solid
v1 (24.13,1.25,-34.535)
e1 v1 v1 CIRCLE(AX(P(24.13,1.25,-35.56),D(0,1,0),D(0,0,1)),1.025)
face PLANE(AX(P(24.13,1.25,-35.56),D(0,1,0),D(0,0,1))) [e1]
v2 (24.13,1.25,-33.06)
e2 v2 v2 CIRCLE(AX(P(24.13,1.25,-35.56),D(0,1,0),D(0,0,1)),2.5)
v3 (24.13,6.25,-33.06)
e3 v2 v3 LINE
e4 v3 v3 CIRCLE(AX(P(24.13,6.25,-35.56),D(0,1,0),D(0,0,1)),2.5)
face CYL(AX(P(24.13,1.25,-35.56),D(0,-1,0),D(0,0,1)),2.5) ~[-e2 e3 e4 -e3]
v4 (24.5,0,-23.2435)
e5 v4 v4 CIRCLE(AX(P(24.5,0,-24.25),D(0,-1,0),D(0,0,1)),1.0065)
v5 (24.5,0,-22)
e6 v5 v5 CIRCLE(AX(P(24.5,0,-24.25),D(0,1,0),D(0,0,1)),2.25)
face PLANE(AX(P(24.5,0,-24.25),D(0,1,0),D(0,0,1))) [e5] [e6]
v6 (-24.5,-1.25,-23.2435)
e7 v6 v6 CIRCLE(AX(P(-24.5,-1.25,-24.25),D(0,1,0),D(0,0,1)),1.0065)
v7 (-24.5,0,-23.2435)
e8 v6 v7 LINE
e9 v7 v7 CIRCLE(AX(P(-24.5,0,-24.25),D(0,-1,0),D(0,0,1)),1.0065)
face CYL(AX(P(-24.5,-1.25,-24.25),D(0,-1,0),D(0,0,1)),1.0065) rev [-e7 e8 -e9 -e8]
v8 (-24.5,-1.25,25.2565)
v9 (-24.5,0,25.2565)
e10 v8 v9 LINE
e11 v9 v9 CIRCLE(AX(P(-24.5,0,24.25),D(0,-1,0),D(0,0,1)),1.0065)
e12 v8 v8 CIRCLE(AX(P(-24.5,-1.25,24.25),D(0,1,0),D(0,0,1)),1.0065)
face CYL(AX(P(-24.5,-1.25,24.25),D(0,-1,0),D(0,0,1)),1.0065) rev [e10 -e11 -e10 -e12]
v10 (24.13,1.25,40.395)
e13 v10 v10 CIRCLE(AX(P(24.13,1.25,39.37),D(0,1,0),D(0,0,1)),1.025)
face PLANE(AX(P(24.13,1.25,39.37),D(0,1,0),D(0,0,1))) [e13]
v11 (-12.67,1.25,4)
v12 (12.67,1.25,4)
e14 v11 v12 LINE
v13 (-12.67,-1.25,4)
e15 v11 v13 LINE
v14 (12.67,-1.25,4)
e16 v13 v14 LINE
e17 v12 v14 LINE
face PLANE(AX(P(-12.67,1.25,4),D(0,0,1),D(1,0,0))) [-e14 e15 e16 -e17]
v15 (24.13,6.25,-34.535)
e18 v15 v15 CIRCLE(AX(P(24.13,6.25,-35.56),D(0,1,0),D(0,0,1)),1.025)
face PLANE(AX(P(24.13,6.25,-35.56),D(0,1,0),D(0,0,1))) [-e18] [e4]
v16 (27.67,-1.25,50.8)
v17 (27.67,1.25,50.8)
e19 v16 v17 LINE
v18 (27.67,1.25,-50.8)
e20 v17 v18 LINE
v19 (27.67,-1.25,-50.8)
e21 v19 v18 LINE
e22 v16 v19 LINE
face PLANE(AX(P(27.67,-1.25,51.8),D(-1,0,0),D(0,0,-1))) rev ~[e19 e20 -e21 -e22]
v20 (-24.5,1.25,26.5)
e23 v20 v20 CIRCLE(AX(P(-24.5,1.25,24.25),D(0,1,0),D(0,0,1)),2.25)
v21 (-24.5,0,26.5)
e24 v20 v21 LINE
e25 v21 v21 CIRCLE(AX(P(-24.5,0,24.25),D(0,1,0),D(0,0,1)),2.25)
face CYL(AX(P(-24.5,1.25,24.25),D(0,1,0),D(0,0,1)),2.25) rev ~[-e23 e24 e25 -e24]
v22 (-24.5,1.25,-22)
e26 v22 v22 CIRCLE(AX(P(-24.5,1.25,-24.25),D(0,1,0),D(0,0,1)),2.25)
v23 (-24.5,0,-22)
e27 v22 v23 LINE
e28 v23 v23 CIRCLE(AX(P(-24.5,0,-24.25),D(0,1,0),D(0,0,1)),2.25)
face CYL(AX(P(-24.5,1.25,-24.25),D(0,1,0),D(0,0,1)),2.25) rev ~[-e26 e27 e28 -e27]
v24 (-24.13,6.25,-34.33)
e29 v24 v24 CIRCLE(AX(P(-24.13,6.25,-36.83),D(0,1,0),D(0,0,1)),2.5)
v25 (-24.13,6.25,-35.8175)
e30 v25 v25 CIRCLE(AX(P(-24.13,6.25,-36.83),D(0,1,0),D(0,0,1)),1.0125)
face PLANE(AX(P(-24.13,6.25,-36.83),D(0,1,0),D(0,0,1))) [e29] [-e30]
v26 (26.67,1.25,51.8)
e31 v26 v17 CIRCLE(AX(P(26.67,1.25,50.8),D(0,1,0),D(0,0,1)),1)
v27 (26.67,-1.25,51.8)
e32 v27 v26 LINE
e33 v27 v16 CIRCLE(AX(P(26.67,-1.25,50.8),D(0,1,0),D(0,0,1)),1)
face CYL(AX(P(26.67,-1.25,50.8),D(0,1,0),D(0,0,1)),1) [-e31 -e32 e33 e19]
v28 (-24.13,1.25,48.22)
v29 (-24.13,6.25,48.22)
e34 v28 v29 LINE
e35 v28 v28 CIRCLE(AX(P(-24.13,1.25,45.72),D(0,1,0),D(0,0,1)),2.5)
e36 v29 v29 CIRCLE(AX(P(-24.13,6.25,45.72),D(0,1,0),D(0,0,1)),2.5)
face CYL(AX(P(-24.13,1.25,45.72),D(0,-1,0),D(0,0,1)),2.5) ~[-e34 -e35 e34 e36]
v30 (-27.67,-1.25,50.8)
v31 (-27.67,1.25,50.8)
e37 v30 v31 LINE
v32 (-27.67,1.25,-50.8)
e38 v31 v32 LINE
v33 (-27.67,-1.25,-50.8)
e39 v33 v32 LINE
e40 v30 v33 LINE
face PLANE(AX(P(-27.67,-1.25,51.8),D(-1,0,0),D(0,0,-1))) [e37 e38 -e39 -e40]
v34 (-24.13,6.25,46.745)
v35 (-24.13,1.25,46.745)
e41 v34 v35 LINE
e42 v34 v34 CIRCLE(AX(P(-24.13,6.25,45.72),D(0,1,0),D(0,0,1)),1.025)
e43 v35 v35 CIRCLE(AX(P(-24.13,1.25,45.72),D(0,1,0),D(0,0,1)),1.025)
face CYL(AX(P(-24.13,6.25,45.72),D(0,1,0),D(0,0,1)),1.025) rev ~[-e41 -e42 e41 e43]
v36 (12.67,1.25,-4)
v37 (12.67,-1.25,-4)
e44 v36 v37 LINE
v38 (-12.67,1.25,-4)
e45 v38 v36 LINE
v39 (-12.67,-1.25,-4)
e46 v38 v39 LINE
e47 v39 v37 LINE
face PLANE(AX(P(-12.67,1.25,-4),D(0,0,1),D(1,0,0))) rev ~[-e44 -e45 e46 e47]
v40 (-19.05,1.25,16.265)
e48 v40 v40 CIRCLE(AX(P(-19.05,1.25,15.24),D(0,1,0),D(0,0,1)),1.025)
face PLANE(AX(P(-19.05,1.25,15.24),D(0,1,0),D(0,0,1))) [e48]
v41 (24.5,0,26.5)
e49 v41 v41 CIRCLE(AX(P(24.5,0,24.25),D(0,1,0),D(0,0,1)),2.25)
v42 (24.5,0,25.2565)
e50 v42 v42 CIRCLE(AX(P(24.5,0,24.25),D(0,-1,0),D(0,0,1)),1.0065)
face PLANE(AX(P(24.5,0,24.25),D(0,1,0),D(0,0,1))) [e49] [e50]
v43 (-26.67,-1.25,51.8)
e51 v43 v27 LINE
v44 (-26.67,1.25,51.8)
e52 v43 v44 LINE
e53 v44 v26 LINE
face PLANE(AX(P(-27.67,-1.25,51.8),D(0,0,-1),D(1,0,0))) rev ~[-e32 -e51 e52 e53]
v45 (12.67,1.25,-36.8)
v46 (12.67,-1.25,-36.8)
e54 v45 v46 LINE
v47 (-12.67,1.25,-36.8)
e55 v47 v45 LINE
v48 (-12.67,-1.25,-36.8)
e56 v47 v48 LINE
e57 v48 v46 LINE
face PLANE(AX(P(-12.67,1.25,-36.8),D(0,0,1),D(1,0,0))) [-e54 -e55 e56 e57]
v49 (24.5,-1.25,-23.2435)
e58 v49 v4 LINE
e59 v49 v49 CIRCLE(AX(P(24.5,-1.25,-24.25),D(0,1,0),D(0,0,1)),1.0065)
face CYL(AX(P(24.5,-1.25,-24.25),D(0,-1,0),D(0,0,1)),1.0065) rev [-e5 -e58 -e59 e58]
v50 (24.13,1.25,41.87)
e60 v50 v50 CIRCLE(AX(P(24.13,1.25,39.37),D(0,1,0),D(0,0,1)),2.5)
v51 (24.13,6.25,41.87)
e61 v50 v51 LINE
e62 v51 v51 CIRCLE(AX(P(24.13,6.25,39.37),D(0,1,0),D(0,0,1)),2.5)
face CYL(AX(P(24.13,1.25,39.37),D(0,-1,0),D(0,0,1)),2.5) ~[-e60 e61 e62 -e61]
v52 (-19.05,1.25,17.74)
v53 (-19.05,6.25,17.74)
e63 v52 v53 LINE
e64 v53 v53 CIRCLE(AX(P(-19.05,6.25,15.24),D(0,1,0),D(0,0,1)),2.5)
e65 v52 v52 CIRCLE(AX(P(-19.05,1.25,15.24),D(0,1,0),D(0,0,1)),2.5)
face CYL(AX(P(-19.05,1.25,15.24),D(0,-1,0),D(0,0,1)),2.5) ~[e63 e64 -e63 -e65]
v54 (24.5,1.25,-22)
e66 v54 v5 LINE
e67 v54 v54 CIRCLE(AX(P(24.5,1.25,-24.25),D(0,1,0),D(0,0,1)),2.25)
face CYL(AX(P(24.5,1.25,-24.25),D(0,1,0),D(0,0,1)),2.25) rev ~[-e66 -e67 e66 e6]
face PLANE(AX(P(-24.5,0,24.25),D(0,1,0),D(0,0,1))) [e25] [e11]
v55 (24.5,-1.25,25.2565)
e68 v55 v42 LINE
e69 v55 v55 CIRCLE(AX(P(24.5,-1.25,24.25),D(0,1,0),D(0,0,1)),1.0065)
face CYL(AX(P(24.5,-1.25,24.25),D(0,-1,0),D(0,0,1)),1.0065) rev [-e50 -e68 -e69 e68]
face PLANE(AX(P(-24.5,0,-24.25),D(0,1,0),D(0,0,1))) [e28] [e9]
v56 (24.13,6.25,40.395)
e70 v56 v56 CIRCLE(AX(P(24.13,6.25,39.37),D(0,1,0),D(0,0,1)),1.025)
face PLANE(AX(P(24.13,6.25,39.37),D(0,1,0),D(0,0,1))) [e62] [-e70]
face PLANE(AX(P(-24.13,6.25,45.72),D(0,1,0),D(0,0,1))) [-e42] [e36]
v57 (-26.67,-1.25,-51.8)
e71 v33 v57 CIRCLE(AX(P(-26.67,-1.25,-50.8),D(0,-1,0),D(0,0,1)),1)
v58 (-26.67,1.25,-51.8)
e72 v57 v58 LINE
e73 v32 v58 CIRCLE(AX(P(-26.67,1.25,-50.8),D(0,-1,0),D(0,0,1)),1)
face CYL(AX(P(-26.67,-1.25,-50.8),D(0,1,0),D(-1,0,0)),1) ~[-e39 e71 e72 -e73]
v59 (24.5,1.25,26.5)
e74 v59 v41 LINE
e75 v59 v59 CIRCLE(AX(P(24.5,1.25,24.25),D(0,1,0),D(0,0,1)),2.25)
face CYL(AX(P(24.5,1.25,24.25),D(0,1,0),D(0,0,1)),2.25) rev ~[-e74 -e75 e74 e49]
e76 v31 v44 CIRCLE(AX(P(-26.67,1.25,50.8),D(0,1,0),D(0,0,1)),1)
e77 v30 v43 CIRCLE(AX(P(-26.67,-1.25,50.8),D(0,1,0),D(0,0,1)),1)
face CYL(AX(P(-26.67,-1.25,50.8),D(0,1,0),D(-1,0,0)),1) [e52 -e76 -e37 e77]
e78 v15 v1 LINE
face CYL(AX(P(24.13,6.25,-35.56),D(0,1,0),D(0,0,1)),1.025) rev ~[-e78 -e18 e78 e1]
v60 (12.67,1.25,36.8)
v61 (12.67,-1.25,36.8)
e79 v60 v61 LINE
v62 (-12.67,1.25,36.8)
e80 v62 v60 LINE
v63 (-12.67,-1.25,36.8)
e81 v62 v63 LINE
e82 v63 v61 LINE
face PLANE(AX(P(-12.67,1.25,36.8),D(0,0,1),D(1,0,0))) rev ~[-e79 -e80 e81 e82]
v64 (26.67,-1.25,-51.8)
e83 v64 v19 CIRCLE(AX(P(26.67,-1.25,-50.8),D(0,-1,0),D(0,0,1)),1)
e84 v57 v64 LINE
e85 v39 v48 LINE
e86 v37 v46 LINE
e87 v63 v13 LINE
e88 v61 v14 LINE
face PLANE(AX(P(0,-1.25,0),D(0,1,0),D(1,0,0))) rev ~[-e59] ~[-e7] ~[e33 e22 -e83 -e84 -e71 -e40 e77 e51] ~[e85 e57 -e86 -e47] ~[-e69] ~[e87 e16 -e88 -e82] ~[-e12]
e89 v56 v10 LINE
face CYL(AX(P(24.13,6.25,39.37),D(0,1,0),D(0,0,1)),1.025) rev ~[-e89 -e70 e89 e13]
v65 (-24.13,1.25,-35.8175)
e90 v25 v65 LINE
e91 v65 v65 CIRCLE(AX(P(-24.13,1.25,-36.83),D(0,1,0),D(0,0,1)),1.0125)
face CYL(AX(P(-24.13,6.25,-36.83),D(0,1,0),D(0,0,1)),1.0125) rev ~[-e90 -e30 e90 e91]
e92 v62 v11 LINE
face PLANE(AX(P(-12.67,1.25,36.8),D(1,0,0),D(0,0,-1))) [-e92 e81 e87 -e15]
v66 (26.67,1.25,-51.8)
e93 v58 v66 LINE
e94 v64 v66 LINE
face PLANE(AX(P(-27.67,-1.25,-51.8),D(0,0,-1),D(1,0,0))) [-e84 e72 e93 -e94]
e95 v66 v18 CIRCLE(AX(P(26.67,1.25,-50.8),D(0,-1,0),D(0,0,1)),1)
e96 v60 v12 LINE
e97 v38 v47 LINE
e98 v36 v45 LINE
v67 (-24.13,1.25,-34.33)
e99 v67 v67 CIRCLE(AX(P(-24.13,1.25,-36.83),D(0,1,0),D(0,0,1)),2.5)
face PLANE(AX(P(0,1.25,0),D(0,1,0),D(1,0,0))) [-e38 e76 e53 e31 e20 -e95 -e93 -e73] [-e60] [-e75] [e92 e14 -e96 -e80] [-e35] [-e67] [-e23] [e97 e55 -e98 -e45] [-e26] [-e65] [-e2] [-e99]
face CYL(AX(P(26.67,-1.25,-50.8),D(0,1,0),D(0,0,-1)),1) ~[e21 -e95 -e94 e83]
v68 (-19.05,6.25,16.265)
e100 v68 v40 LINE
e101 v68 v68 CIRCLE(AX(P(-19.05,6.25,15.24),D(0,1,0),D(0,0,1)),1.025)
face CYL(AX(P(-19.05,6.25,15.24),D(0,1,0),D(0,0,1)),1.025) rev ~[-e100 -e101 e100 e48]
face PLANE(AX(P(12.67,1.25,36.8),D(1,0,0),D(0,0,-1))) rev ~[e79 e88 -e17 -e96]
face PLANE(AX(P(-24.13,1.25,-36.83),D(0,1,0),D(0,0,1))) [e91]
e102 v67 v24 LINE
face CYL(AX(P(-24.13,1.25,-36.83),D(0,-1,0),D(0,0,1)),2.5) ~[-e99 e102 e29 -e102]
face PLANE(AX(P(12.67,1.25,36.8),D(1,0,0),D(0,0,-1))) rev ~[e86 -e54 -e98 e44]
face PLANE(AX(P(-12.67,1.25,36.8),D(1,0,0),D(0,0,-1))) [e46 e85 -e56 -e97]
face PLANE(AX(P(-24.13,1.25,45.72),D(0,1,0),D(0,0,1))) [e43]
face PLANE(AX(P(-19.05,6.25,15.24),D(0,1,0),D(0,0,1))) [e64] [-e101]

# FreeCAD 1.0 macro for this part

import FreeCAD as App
import Part
import Sketcher


def edges_at(feature, points):
    """Names of the edges that pass closest to the given points."""
    edges = feature.Shape.Edges
    near = lambda p: min(range(len(edges)), key=lambda i: edges[i].distToShape(Part.Vertex(*p))[0])
    return sorted({f"Edge{near(p) + 1}" for p in points})


def add_polygon(sketch, points):
    """Adds a closed chain of lines whose ends are joined by coincident constraints."""
    first, n = sketch.GeometryCount, len(points)
    for a, b in zip(points, points[1:] + points[:1]):
        sketch.addGeometry(Part.LineSegment(App.Vector(*a, 0), App.Vector(*b, 0)), False)
    for i in range(n):
        sketch.addConstraint(Sketcher.Constraint("Coincident", first + i, 2, first + (i + 1) % n, 1))

doc = App.newDocument("Part")
body = doc.addObject("PartDesign::Body", "Body")

sketch1 = body.newObject("Sketcher::SketchObject", "Sketch")
sketch1.AttachmentSupport = (doc.getObject("XZ_Plane"), [""])
sketch1.MapMode = "FlatFace"
add_polygon(sketch1, [(-27.7, -51.8), (-27.7, 51.8), (27.7, 51.8), (27.7, -51.8)])
sketch1.addGeometry(Part.Circle(App.Vector(-24.5, 24.2, 0), App.Vector(0, 0, 1), 1), False)
sketch1.addGeometry(Part.Circle(App.Vector(24.5, 24.2, 0), App.Vector(0, 0, 1), 1), False)
sketch1.addGeometry(Part.Circle(App.Vector(-24.5, -24.2, 0), App.Vector(0, 0, 1), 1), False)
sketch1.addGeometry(Part.Circle(App.Vector(24.5, -24.2, 0), App.Vector(0, 0, 1), 1), False)
sketch1.addConstraint([
    Sketcher.Constraint("Vertical", 0),
    Sketcher.Constraint("Horizontal", 1),
    Sketcher.Constraint("Vertical", 2),
    Sketcher.Constraint("Horizontal", 3),
    Sketcher.Constraint("Equal", 4, 5),
    Sketcher.Constraint("Equal", 5, 6),
    Sketcher.Constraint("Equal", 6, 7),
    Sketcher.Constraint("Symmetric", 5, 3, 6, 3, -1, 1),
    Sketcher.Constraint("Symmetric", 4, 3, 7, 3, -1, 1),
    Sketcher.Constraint("Symmetric", 0, 2, 2, 2, -1, 1),
    Sketcher.Constraint("Symmetric", 4, 3, 5, 3, -2),
    Sketcher.Constraint("Diameter", 4, 2.013),
    Sketcher.Constraint("DistanceY", 0, 1, 0, 2, 103.6),
    Sketcher.Constraint("DistanceX", 4, 3, 5, 3, 49.0),
    Sketcher.Constraint("DistanceX", 1, 1, 1, 2, 55.34),
    Sketcher.Constraint("DistanceY", 6, 3, 4, 3, 48.5),
])
pad1 = body.newObject("PartDesign::Pad", "Pad")
pad1.Profile = sketch1
pad1.Type = "TwoLengths"
pad1.Length = 1.25
pad1.Length2 = 1.25
pad1.Reversed = True

sketch2 = body.newObject("Sketcher::SketchObject", "Sketch001")
sketch2.AttachmentSupport = (doc.getObject("XZ_Plane"), [""])
sketch2.MapMode = "FlatFace"
sketch2.AttachmentOffset = App.Placement(App.Vector(0, 0, -1.25), App.Rotation())
sketch2.addGeometry([
    Part.Circle(App.Vector(-24.5, -24.2, 0), App.Vector(0, 0, 1), 2.2),
    Part.Circle(App.Vector(24.5, -24.2, 0), App.Vector(0, 0, 1), 2.2),
    Part.Circle(App.Vector(24.5, 24.2, 0), App.Vector(0, 0, 1), 2.2),
    Part.Circle(App.Vector(-24.5, 24.2, 0), App.Vector(0, 0, 1), 2.2),
], False)
sketch2.addConstraint([
    Sketcher.Constraint("Equal", 0, 1),
    Sketcher.Constraint("Equal", 1, 2),
    Sketcher.Constraint("Equal", 2, 3),
    Sketcher.Constraint("Symmetric", 0, 3, 2, 3, -1, 1),
    Sketcher.Constraint("Symmetric", 1, 3, 3, 3, -1, 1),
    Sketcher.Constraint("Symmetric", 0, 3, 1, 3, -2),
    Sketcher.Constraint("Diameter", 0, 4.5),
    Sketcher.Constraint("DistanceX", 0, 3, 1, 3, 49.0),
    Sketcher.Constraint("DistanceY", 1, 3, 2, 3, 48.5),
])
pocket1 = body.newObject("PartDesign::Pocket", "Pocket")
pocket1.Profile = sketch2
pocket1.Length = 1.25
pocket1.Reversed = True

sketch3 = body.newObject("Sketcher::SketchObject", "Sketch002")
sketch3.AttachmentSupport = (doc.getObject("XZ_Plane"), [""])
sketch3.MapMode = "FlatFace"
sketch3.AttachmentOffset = App.Placement(App.Vector(0, 0, -1.25), App.Rotation())
sketch3.addGeometry([
    Part.Circle(App.Vector(-19.1, 15.2, 0), App.Vector(0, 0, 1), 2.5),
    Part.Circle(App.Vector(-24.1, 45.7, 0), App.Vector(0, 0, 1), 2.5),
    Part.Circle(App.Vector(24.1, 39.4, 0), App.Vector(0, 0, 1), 2.5),
    Part.Circle(App.Vector(24.1, -35.6, 0), App.Vector(0, 0, 1), 2.5),
    Part.Circle(App.Vector(-24.1, -36.8, 0), App.Vector(0, 0, 1), 2.5),
], False)
sketch3.addConstraint([
    Sketcher.Constraint("Equal", 0, 1),
    Sketcher.Constraint("Equal", 1, 2),
    Sketcher.Constraint("Equal", 2, 3),
    Sketcher.Constraint("Equal", 3, 4),
    Sketcher.Constraint("Vertical", 2, 3, 3, 3),
    Sketcher.Constraint("Vertical", 1, 3, 4, 3),
    Sketcher.Constraint("Diameter", 0, 5.0),
    Sketcher.Constraint("DistanceY", 3, 3, 0, 3, 50.8),
    Sketcher.Constraint("DistanceY", 4, 3, 2, 3, 76.2),
    Sketcher.Constraint("DistanceX", 0, 3, -1, 1, 19.05),
    Sketcher.Constraint("DistanceY", -1, 1, 0, 3, 15.24),
    Sketcher.Constraint("DistanceX", 1, 3, -1, 1, 24.13),
    Sketcher.Constraint("DistanceY", -1, 1, 1, 3, 45.72),
    Sketcher.Constraint("DistanceX", -1, 1, 2, 3, 24.13),
    Sketcher.Constraint("DistanceY", -1, 1, 2, 3, 39.37),
])
pad2 = body.newObject("PartDesign::Pad", "Pad001")
pad2.Profile = sketch3
pad2.Length = 5
pad2.Reversed = True

sketch4 = body.newObject("Sketcher::SketchObject", "Sketch003")
sketch4.AttachmentSupport = (doc.getObject("XZ_Plane"), [""])
sketch4.MapMode = "FlatFace"
sketch4.AttachmentOffset = App.Placement(App.Vector(0, 0, -6.25), App.Rotation())
sketch4.addGeometry([
    Part.Circle(App.Vector(-24.1, 45.7, 0), App.Vector(0, 0, 1), 1),
    Part.Circle(App.Vector(-24.1, -36.8, 0), App.Vector(0, 0, 1), 1),
    Part.Circle(App.Vector(24.1, 39.4, 0), App.Vector(0, 0, 1), 1),
    Part.Circle(App.Vector(24.1, -35.6, 0), App.Vector(0, 0, 1), 1),
    Part.Circle(App.Vector(-19.1, 15.2, 0), App.Vector(0, 0, 1), 1),
], False)
sketch4.addConstraint([
    Sketcher.Constraint("Equal", 0, 2),
    Sketcher.Constraint("Equal", 2, 3),
    Sketcher.Constraint("Equal", 3, 4),
    Sketcher.Constraint("Vertical", 0, 3, 1, 3),
    Sketcher.Constraint("Vertical", 2, 3, 3, 3),
    Sketcher.Constraint("Diameter", 0, 2.05),
    Sketcher.Constraint("Diameter", 1, 2.025),
    Sketcher.Constraint("DistanceY", 1, 3, 2, 3, 76.2),
    Sketcher.Constraint("DistanceY", 3, 3, 4, 3, 50.8),
    Sketcher.Constraint("DistanceX", 0, 3, -1, 1, 24.13),
    Sketcher.Constraint("DistanceY", -1, 1, 0, 3, 45.72),
    Sketcher.Constraint("DistanceY", 1, 3, -1, 1, 36.83),
    Sketcher.Constraint("DistanceX", -1, 1, 2, 3, 24.13),
    Sketcher.Constraint("DistanceY", 3, 3, -1, 1, 35.56),
    Sketcher.Constraint("DistanceX", 4, 3, -1, 1, 19.05),
])
pocket2 = body.newObject("PartDesign::Pocket", "Pocket001")
pocket2.Profile = sketch4
pocket2.Length = 5
pocket2.Reversed = True

sketch5 = body.newObject("Sketcher::SketchObject", "Sketch004")
sketch5.AttachmentSupport = (doc.getObject("XZ_Plane"), [""])
sketch5.MapMode = "FlatFace"
sketch5.AttachmentOffset = App.Placement(App.Vector(0, 0, -1.25), App.Rotation())
add_polygon(sketch5, [(-13, -37), (-13, 37), (13, 37), (13, -37)])
sketch5.addConstraint([
    Sketcher.Constraint("Vertical", 0),
    Sketcher.Constraint("Horizontal", 1),
    Sketcher.Constraint("Vertical", 2),
    Sketcher.Constraint("Horizontal", 3),
    Sketcher.Constraint("Symmetric", 0, 2, 2, 2, -1, 1),
    Sketcher.Constraint("DistanceY", 0, 1, 0, 2, 73.6),
    Sketcher.Constraint("DistanceX", 1, 1, 1, 2, 25.34),
])
pocket3 = body.newObject("PartDesign::Pocket", "Pocket002")
pocket3.Profile = sketch5
pocket3.Type = "ThroughAll"
pocket3.Reversed = True

sketch6 = body.newObject("Sketcher::SketchObject", "Sketch005")
sketch6.AttachmentSupport = (doc.getObject("XZ_Plane"), [""])
sketch6.MapMode = "FlatFace"
sketch6.AttachmentOffset = App.Placement(App.Vector(0, 0, -1.25), App.Rotation())
add_polygon(sketch6, [(-13, -4), (-13, 4), (13, 4), (13, -4)])
sketch6.addConstraint([
    Sketcher.Constraint("Vertical", 0),
    Sketcher.Constraint("Horizontal", 1),
    Sketcher.Constraint("Vertical", 2),
    Sketcher.Constraint("Horizontal", 3),
    Sketcher.Constraint("Symmetric", 0, 2, 2, 2, -1, 1),
    Sketcher.Constraint("DistanceY", 0, 1, 0, 2, 8.0),
    Sketcher.Constraint("DistanceX", 1, 1, 1, 2, 25.34),
])
pad3 = body.newObject("PartDesign::Pad", "Pad002")
pad3.Profile = sketch6
pad3.Length = 2.5
doc.recompute()

fillet = body.newObject("PartDesign::Fillet", "Fillet")
fillet.Base = (pad3, edges_at(pad3, [
    (-27.67, 0, -51.8),
    (27.67, 0, -51.8),
    (27.67, 0, 51.8),
    (-27.67, 0, 51.8),
]))
fillet.Radius = 1

doc.recompute()
